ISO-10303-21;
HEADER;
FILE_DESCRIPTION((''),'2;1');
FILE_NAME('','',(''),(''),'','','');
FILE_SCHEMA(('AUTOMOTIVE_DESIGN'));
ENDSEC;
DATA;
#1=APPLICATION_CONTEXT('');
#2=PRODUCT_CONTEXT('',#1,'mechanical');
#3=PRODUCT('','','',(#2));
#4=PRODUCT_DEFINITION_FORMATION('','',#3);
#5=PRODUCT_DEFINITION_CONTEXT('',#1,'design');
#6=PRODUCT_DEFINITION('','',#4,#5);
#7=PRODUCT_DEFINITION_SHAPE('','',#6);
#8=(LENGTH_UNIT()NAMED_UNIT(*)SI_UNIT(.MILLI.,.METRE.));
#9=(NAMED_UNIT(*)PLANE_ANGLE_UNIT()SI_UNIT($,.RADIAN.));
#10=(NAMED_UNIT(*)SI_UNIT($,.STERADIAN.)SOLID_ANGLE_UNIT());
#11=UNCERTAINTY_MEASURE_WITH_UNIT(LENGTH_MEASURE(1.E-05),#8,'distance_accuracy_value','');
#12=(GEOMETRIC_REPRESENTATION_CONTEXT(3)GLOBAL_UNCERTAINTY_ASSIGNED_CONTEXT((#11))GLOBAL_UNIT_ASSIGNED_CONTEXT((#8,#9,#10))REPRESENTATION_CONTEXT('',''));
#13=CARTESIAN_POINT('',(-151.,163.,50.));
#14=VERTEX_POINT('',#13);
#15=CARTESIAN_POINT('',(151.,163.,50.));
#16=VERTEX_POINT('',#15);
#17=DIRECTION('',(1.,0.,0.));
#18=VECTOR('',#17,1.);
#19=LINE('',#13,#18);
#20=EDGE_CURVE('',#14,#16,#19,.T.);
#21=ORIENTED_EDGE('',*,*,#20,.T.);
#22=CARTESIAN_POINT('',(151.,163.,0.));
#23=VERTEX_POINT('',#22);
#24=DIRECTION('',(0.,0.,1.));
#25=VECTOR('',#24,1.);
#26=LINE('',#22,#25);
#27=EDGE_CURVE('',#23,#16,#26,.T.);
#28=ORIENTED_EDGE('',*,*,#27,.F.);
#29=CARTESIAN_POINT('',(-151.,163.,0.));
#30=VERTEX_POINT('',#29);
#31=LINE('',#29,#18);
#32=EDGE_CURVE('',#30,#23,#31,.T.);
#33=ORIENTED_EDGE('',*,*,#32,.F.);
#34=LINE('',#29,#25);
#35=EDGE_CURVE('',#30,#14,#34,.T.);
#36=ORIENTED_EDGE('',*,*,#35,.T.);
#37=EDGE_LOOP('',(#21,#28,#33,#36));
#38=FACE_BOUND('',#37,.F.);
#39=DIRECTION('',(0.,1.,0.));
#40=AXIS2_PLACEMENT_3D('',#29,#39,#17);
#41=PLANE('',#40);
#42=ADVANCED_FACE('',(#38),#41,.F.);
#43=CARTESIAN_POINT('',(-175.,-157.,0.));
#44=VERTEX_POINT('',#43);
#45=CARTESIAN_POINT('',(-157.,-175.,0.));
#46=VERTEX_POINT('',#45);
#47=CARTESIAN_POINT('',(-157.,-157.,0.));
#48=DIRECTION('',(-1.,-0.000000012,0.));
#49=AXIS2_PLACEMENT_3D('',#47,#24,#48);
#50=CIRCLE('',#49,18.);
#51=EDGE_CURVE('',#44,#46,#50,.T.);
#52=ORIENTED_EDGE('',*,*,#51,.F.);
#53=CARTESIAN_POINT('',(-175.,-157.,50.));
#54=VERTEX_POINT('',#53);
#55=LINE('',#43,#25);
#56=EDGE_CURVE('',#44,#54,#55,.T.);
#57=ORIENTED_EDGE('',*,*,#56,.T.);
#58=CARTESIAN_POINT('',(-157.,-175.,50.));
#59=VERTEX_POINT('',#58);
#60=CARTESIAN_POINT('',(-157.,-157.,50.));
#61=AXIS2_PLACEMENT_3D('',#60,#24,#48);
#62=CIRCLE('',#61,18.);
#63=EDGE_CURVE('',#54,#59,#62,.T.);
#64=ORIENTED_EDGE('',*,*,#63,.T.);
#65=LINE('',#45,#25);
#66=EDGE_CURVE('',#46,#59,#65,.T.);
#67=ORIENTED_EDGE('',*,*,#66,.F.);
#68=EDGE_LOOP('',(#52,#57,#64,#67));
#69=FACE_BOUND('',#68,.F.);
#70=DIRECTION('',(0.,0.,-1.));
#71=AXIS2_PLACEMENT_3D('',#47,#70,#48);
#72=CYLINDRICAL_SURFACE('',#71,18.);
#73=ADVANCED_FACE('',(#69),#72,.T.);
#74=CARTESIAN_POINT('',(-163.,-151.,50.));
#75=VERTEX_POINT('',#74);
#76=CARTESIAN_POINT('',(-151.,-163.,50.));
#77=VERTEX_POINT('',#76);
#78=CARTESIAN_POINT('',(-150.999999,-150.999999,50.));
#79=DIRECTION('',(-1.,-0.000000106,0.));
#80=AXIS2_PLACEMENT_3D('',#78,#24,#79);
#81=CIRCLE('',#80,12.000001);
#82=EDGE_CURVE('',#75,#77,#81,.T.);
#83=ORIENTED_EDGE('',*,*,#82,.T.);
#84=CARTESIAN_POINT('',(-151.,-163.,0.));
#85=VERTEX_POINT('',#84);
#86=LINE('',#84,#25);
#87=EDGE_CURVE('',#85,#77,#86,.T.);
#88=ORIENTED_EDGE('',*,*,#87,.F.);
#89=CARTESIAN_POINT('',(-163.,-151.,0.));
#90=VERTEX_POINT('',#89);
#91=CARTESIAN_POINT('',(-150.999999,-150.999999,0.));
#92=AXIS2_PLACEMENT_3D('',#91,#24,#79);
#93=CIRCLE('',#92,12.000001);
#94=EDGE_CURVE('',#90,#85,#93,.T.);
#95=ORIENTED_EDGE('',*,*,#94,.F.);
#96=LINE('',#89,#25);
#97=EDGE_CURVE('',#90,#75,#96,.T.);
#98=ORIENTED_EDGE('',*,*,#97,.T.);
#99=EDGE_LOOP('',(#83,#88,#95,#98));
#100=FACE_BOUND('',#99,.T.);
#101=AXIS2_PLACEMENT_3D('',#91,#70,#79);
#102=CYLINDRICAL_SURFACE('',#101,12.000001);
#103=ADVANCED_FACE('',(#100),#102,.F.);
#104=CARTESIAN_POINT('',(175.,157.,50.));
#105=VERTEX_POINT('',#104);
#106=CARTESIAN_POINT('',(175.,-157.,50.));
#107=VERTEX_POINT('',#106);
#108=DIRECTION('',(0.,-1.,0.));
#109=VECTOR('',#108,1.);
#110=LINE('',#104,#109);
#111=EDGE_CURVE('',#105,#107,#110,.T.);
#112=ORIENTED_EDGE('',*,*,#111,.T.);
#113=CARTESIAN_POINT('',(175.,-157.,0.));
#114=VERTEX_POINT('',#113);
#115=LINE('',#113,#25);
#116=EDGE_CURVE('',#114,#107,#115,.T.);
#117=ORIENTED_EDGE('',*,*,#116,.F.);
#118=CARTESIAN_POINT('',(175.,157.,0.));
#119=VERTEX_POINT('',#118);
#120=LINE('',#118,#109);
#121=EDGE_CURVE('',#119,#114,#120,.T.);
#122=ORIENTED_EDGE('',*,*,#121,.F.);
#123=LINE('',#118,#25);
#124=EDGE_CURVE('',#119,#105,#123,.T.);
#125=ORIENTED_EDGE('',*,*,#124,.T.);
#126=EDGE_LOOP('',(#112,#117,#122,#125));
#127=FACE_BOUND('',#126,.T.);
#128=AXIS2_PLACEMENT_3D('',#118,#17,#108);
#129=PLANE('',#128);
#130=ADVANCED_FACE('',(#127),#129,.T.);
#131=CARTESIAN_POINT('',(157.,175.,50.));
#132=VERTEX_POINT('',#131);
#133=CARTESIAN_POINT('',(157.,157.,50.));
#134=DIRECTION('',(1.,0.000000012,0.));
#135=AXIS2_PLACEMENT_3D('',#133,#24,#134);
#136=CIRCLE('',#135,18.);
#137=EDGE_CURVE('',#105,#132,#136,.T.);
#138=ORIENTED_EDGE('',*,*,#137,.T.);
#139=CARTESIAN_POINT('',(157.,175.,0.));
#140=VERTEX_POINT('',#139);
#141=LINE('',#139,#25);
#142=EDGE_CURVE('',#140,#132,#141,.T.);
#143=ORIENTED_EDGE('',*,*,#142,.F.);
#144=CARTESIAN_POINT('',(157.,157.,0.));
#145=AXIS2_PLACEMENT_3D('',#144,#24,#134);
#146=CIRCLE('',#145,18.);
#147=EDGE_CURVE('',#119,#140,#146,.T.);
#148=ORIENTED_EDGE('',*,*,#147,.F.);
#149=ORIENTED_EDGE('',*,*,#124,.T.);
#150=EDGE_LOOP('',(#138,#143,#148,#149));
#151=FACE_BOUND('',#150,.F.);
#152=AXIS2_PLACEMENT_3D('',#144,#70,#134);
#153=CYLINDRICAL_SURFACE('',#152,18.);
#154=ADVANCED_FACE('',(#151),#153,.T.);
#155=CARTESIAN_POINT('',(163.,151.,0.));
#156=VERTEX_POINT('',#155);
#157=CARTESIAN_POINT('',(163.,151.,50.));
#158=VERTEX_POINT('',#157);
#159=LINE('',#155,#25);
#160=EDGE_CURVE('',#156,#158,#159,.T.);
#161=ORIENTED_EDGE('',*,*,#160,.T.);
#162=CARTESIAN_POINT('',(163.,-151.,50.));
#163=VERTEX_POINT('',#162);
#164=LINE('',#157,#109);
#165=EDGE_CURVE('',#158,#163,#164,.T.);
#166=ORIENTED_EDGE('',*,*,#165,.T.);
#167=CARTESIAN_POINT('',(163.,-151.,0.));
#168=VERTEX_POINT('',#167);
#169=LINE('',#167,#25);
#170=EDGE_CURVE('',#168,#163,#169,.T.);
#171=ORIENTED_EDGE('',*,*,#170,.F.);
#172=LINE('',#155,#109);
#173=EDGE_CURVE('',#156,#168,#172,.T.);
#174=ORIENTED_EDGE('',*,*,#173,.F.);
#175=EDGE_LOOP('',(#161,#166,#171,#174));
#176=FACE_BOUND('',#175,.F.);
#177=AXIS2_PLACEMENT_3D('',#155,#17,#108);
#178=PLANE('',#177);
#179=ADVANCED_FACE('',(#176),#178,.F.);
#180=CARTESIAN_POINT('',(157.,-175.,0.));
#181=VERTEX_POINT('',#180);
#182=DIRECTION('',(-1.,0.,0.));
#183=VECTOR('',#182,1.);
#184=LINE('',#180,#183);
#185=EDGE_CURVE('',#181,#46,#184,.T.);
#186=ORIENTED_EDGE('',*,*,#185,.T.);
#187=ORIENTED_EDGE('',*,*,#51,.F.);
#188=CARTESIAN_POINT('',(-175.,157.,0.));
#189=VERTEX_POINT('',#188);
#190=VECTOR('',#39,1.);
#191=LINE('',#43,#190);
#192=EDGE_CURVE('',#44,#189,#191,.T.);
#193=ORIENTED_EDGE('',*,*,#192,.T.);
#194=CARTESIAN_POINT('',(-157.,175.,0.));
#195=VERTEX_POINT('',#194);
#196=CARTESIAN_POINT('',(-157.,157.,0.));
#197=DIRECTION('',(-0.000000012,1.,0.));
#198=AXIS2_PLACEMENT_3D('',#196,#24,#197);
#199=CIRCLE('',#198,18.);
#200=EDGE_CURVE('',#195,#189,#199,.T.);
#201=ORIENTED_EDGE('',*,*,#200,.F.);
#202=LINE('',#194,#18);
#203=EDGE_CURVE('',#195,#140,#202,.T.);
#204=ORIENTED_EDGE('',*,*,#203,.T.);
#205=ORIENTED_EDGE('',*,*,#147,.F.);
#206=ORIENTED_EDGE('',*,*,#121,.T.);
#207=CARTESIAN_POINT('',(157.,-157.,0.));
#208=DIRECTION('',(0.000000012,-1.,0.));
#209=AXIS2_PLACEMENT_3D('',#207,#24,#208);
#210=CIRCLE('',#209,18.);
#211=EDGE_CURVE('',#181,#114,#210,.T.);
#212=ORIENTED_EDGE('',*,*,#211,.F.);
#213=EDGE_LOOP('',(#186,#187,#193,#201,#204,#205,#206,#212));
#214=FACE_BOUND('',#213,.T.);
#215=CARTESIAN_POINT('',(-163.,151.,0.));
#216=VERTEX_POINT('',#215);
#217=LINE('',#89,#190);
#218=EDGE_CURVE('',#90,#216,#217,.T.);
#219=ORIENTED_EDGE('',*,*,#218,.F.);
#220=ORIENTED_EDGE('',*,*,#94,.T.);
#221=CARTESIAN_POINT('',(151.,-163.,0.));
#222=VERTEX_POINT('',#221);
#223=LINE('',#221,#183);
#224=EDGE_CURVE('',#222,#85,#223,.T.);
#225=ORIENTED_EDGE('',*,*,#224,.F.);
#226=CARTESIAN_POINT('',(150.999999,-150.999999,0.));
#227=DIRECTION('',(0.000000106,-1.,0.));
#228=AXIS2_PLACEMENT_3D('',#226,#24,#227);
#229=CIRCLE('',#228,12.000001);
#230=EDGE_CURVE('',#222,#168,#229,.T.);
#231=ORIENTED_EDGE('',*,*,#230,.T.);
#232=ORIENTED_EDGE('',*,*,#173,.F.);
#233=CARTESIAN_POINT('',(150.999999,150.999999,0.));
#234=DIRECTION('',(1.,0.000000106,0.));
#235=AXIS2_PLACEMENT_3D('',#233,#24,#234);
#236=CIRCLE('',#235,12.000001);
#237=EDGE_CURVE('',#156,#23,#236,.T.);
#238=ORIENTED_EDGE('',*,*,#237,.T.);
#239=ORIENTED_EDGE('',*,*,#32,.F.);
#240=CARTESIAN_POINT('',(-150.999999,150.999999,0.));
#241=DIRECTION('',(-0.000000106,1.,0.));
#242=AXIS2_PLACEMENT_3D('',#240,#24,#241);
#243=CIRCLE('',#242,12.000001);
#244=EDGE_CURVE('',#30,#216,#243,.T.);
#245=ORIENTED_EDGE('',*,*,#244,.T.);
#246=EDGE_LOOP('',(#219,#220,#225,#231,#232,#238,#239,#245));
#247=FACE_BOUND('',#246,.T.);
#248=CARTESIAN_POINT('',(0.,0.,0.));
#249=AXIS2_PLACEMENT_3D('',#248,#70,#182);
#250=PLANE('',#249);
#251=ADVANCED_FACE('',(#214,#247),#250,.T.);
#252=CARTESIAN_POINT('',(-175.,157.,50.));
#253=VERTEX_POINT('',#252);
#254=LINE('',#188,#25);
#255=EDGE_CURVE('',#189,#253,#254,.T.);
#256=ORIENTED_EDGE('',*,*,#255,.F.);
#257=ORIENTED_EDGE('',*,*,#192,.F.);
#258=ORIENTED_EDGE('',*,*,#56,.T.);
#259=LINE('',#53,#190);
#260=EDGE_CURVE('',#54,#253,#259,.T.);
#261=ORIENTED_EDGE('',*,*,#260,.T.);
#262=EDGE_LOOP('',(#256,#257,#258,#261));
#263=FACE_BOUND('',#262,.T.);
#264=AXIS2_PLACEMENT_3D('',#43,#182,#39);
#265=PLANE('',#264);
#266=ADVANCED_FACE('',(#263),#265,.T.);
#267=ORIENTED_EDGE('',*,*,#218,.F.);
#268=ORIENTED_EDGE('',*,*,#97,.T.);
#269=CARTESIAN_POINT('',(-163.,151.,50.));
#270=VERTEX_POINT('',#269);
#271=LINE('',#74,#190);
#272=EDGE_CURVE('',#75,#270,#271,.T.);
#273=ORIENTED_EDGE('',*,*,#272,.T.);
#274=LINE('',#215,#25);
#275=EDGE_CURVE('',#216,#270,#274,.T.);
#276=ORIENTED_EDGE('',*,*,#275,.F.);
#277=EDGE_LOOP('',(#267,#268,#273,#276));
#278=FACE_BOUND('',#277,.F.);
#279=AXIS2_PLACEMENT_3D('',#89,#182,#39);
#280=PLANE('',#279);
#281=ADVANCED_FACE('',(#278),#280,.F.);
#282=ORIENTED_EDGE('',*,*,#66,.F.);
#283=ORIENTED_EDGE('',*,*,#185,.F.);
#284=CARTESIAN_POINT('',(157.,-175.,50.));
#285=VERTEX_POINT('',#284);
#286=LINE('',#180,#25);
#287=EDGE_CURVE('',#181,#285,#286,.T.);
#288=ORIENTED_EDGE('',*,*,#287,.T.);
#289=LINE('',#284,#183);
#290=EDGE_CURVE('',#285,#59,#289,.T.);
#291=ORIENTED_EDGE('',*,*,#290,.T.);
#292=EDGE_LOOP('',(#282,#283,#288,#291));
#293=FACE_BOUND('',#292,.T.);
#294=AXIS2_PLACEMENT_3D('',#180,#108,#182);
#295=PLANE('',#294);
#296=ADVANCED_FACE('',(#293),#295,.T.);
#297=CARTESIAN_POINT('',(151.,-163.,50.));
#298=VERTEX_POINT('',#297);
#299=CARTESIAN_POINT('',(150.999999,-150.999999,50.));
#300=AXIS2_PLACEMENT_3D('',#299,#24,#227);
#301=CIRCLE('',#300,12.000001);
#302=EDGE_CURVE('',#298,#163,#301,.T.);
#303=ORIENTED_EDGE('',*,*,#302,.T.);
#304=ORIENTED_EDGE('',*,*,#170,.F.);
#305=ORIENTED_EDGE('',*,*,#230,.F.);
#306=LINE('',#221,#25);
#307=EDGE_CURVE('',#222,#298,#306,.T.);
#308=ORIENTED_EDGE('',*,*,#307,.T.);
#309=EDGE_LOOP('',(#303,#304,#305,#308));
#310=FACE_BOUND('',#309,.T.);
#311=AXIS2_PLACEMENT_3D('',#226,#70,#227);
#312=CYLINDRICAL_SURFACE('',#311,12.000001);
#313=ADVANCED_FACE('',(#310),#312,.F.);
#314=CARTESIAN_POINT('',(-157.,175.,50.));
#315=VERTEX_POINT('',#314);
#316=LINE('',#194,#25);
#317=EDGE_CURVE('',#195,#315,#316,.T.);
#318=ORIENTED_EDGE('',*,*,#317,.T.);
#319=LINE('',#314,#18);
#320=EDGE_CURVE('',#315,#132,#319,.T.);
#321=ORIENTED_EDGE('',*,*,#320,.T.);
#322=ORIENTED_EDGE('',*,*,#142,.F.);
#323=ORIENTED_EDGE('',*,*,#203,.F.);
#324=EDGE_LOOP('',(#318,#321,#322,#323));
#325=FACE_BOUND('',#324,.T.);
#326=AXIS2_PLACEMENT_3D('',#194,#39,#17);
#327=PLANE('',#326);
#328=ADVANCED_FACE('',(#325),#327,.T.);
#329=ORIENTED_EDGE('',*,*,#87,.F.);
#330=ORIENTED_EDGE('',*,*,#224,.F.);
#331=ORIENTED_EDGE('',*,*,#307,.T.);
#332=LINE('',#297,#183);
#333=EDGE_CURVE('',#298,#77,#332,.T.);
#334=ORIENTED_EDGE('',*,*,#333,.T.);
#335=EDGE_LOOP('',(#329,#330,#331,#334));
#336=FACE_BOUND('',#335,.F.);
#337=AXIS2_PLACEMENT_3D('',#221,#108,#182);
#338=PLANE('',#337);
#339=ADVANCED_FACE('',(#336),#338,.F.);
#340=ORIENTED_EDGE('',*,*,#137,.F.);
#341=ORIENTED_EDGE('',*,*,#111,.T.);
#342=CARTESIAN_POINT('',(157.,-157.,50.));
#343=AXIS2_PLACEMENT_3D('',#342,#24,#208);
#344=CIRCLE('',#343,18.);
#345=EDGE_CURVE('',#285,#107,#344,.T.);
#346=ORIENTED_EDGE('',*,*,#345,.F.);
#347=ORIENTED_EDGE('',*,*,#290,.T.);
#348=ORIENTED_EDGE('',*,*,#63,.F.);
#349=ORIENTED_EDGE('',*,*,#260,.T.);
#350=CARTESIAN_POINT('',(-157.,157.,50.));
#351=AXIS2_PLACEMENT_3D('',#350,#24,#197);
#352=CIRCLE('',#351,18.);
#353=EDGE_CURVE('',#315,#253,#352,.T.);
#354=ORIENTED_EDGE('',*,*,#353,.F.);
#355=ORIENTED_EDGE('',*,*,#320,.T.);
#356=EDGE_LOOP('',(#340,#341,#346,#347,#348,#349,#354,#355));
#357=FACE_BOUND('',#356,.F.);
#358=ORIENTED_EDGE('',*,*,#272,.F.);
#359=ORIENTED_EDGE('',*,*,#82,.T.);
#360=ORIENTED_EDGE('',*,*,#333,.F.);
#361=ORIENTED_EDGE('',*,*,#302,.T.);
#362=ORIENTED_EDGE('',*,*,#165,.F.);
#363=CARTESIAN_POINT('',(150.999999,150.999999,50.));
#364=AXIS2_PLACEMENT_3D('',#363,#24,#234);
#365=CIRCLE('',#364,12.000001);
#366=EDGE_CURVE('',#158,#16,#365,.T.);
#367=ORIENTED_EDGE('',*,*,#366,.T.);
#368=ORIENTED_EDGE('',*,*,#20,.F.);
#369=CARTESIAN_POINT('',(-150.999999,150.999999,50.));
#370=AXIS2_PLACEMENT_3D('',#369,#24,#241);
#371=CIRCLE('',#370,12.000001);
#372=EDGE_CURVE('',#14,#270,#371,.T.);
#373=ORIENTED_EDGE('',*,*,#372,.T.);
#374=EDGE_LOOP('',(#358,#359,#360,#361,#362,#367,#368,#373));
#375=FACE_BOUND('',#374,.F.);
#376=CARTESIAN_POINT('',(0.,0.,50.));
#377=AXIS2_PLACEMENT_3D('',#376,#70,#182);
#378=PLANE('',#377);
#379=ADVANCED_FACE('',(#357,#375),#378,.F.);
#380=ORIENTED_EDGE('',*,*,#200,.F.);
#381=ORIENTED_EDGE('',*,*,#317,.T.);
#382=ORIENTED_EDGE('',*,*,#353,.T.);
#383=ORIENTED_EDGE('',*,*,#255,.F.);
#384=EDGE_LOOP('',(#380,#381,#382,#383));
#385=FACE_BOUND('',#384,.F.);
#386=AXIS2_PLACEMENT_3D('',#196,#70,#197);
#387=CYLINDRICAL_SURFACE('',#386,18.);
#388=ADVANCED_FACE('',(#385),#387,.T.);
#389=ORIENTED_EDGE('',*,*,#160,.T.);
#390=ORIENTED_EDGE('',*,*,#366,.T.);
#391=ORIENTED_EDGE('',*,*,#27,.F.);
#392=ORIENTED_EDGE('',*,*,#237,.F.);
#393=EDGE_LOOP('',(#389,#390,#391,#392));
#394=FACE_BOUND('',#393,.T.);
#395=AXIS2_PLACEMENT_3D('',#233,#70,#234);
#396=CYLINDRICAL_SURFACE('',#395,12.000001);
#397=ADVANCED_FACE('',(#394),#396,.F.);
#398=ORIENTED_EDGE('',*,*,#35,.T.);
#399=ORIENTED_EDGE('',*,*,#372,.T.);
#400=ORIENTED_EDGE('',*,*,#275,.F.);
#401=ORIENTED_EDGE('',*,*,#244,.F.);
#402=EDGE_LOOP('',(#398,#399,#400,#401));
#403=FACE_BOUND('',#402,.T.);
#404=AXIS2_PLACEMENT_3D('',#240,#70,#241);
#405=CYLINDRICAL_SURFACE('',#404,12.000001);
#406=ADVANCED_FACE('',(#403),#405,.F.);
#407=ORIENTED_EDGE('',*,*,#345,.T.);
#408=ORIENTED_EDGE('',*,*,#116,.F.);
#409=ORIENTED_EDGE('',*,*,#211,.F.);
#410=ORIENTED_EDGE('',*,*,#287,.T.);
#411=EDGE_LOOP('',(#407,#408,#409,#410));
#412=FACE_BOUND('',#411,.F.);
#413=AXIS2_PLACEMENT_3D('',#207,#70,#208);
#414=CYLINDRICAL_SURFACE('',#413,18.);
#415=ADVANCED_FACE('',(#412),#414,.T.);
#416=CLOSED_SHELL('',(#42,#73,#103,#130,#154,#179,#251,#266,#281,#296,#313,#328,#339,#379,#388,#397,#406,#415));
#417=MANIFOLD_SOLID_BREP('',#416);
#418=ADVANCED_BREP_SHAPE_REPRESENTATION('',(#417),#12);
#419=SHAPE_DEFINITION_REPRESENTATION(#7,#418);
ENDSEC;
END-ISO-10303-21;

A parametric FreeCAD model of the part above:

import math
import FreeCAD as App
import Part
import Sketcher
from FreeCAD import Vector

doc = App.newDocument("Part")
body = doc.addObject("PartDesign::Body", "Body")

sketch1 = body.newObject("Sketcher::SketchObject", "Sketch")
sketch1.AttachmentSupport = (doc.getObject("XY_Plane"), [""])
sketch1.MapMode = "FlatFace"
sketch1.addGeometry([
    Part.LineSegment(Vector(157, 175, 0), Vector(-157, 175, 0)),
    Part.ArcOfCircle(Part.Circle(Vector(-157, 157, 0), Vector(0, 0, 1), 18), math.radians(90), math.radians(180)),
    Part.LineSegment(Vector(-175, 157, 0), Vector(-175, -157, 0)),
    Part.ArcOfCircle(Part.Circle(Vector(-157, -157, 0), Vector(0, 0, 1), 18), math.radians(-180), math.radians(-90)),
    Part.LineSegment(Vector(-157, -175, 0), Vector(157, -175, 0)),
    Part.ArcOfCircle(Part.Circle(Vector(157, -157, 0), Vector(0, 0, 1), 18), math.radians(-90), math.radians(0)),
    Part.LineSegment(Vector(175, -157, 0), Vector(175, 157, 0)),
    Part.ArcOfCircle(Part.Circle(Vector(157, 157, 0), Vector(0, 0, 1), 18), math.radians(0), math.radians(90)),
    Part.LineSegment(Vector(-151, 163, 0), Vector(151, 163, 0)),
    Part.ArcOfCircle(Part.Circle(Vector(151, 151, 0), Vector(0, 0, 1), 12), math.radians(0), math.radians(90)),
    Part.LineSegment(Vector(163, 151, 0), Vector(163, -151, 0)),
    Part.ArcOfCircle(Part.Circle(Vector(151, -151, 0), Vector(0, 0, 1), 12), math.radians(-90), math.radians(0)),
    Part.LineSegment(Vector(151, -163, 0), Vector(-151, -163, 0)),
    Part.ArcOfCircle(Part.Circle(Vector(-151, -151, 0), Vector(0, 0, 1), 12), math.radians(-180), math.radians(-90)),
    Part.LineSegment(Vector(-163, -151, 0), Vector(-163, 151, 0)),
    Part.ArcOfCircle(Part.Circle(Vector(-151, 151, 0), Vector(0, 0, 1), 12), math.radians(90), math.radians(180)),
], False)
sketch1.addConstraint([
    Sketcher.Constraint("Tangent", 0, 2, 1, 1),
    Sketcher.Constraint("Tangent", 1, 2, 2, 1),
    Sketcher.Constraint("Tangent", 2, 2, 3, 1),
    Sketcher.Constraint("Tangent", 3, 2, 4, 1),
    Sketcher.Constraint("Tangent", 4, 2, 5, 1),
    Sketcher.Constraint("Tangent", 5, 2, 6, 1),
    Sketcher.Constraint("Tangent", 6, 2, 7, 1),
    Sketcher.Constraint("Tangent", 7, 2, 0, 1),
    Sketcher.Constraint("Tangent", 8, 2, 9, 2),
    Sketcher.Constraint("Tangent", 9, 1, 10, 1),
    Sketcher.Constraint("Tangent", 10, 2, 11, 2),
    Sketcher.Constraint("Tangent", 11, 1, 12, 1),
    Sketcher.Constraint("Tangent", 12, 2, 13, 2),
    Sketcher.Constraint("Tangent", 13, 1, 14, 1),
    Sketcher.Constraint("Tangent", 14, 2, 15, 2),
    Sketcher.Constraint("Tangent", 15, 1, 8, 1),
    Sketcher.Constraint("Horizontal", 0),
    Sketcher.Constraint("Vertical", 2),
    Sketcher.Constraint("Horizontal", 4),
    Sketcher.Constraint("Vertical", 6),
    Sketcher.Constraint("Horizontal", 8),
    Sketcher.Constraint("Vertical", 10),
    Sketcher.Constraint("Horizontal", 12),
    Sketcher.Constraint("Vertical", 14),
    Sketcher.Constraint("Equal", 1, 3),
    Sketcher.Constraint("Equal", 3, 5),
    Sketcher.Constraint("Equal", 5, 7),
    Sketcher.Constraint("Equal", 9, 11),
    Sketcher.Constraint("Equal", 11, 13),
    Sketcher.Constraint("Equal", 13, 15),
    Sketcher.Constraint("Symmetric", 1, 3, 5, 3, -1, 1),
    Sketcher.Constraint("Symmetric", 9, 3, 13, 3, -1, 1),
    Sketcher.Constraint("Equal", 4, 2),
    Sketcher.Constraint("Equal", 12, 10),
    Sketcher.Constraint("Radius", 1, 18.0),
    Sketcher.Constraint("Radius", 9, 12.000001),
    Sketcher.Constraint("DistanceX", 0, 2, 0, 1, 314.0),
    Sketcher.Constraint("DistanceX", 8, 1, 8, 2, 302.0),
])
pad1 = body.newObject("PartDesign::Pad", "Pad")
pad1.Profile = sketch1
pad1.Length = 50

doc.recompute()
